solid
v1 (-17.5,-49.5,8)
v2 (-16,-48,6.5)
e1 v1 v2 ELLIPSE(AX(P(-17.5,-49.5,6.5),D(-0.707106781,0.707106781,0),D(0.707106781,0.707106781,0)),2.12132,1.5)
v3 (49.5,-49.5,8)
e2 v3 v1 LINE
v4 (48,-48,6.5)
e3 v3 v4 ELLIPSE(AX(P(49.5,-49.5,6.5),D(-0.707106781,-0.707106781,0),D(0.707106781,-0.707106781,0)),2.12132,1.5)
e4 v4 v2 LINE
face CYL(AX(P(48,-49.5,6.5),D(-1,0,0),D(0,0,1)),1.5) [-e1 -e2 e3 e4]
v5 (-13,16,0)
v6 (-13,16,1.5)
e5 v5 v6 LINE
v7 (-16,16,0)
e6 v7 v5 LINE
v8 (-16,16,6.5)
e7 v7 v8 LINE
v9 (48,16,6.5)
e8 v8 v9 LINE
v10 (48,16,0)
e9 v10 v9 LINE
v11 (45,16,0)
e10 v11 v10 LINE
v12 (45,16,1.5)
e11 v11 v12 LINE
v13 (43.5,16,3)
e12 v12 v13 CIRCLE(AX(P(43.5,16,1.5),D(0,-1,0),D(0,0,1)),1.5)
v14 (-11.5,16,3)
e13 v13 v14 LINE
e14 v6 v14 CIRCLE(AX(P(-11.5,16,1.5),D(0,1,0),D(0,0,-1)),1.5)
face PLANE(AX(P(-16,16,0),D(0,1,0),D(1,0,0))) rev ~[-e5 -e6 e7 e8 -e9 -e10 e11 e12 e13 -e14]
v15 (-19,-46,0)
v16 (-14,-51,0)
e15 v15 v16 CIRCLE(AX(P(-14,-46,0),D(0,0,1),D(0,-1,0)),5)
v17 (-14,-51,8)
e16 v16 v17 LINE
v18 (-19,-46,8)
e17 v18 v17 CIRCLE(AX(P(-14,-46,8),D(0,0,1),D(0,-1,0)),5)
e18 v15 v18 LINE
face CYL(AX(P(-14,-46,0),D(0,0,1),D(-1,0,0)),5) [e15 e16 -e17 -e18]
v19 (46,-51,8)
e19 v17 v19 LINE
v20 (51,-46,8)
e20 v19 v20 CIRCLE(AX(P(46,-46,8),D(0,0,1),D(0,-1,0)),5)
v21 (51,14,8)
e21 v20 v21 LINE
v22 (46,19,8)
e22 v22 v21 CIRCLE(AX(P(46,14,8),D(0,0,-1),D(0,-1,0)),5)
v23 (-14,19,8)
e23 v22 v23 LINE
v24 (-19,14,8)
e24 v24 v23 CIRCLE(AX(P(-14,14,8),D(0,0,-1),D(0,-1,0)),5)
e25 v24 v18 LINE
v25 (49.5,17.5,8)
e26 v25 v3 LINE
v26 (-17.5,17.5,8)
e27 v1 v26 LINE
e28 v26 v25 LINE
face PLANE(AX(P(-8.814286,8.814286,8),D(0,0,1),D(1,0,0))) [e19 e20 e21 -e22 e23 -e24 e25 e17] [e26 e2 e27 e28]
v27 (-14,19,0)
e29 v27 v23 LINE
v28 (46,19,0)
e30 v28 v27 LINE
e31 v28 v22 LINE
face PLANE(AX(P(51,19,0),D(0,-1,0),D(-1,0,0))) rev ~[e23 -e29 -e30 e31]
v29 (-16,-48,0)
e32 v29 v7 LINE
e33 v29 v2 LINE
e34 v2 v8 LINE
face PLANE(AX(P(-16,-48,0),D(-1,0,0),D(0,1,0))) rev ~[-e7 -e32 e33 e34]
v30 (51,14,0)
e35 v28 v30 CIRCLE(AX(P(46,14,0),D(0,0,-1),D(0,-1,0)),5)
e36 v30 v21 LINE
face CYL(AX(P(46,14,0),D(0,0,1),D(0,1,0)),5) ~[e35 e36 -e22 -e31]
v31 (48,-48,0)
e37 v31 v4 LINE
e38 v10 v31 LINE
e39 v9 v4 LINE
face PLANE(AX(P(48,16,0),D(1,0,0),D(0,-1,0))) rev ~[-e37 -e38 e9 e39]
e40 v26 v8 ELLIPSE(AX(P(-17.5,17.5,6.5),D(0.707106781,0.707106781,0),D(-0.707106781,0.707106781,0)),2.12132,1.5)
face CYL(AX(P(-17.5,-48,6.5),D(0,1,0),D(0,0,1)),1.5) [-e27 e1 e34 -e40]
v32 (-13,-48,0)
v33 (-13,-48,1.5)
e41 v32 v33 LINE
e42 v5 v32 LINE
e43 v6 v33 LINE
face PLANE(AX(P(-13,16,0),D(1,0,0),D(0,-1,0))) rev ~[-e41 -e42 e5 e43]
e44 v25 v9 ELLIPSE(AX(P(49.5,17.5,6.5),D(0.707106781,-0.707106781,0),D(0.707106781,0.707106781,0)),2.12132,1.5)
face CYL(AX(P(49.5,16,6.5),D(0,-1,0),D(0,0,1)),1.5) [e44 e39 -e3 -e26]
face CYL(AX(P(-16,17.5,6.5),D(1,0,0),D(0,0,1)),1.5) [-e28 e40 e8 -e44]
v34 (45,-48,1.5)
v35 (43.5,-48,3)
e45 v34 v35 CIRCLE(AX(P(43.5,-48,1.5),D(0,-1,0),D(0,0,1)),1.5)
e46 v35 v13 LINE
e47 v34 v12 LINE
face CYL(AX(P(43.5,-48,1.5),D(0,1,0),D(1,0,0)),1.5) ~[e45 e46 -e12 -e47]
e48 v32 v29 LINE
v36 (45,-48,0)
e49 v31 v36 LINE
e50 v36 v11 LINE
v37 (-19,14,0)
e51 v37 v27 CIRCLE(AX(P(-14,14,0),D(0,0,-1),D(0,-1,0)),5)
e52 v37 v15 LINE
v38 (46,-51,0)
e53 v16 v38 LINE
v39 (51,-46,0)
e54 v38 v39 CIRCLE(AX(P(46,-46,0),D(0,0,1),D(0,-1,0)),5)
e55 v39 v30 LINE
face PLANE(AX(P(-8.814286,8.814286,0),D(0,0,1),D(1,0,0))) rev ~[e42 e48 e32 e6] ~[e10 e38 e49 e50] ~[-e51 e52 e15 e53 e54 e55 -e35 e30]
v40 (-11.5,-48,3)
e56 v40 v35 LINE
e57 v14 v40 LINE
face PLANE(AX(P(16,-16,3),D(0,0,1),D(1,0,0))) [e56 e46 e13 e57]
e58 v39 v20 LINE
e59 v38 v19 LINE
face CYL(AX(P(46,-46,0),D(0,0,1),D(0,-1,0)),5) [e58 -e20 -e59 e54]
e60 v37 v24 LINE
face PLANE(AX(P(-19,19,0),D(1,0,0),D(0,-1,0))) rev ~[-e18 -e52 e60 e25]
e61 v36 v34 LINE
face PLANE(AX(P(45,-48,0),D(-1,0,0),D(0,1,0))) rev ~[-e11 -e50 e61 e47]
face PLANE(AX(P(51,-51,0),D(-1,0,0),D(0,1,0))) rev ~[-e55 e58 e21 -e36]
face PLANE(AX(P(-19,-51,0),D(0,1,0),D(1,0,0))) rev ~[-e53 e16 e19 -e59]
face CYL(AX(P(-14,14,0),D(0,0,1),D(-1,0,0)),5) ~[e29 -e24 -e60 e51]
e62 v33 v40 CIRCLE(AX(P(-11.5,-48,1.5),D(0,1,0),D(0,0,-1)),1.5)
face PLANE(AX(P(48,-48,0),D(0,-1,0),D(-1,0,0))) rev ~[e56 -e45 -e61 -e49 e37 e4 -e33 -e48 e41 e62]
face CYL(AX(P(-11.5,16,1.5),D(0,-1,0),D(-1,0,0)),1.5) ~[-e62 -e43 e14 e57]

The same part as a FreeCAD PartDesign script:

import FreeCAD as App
import Part
import Sketcher

V = App.Vector


def edges_at(feature, points):
    """Names of the edges that pass closest to the given points."""
    edges = feature.Shape.Edges
    near = lambda p: min(range(len(edges)), key=lambda i: edges[i].distToShape(Part.Vertex(*p))[0])
    return sorted({f"Edge{near(p) + 1}" for p in points})

doc = App.newDocument("Part")
body = doc.addObject("PartDesign::Body", "Body")

# Sketch on XY plane
sketch1 = body.newObject("Sketcher::SketchObject", "Sketch")
sketch1.AttachmentSupport = (doc.getObject("XY_Plane"), [""])
sketch1.MapMode = "FlatFace"
sketch1.addGeometry([
    Part.LineSegment(V(45, 16, 0), V(-13, 16, 0)),
    Part.LineSegment(V(-13, 16, 0), V(-13, -48, 0)),
    Part.LineSegment(V(-13, -48, 0), V(45, -48, 0)),
    Part.LineSegment(V(45, -48, 0), V(45, 16, 0)),
], False)
sketch1.addConstraint([
    Sketcher.Constraint("Coincident", 0, 2, 1, 1),
    Sketcher.Constraint("Coincident", 1, 2, 2, 1),
    Sketcher.Constraint("Coincident", 2, 2, 3, 1),
    Sketcher.Constraint("Coincident", 3, 2, 0, 1),
    Sketcher.Constraint("Horizontal", 0),
    Sketcher.Constraint("Vertical", 1),
    Sketcher.Constraint("Horizontal", 2),
    Sketcher.Constraint("Vertical", 3),
    Sketcher.Constraint("DistanceX", 0, 2, 0, 1, 58.0),
    Sketcher.Constraint("DistanceY", 1, 2, 1, 1, 64.0),
    Sketcher.Constraint("DistanceX", 0, 2, -1, 1, 13.0),
    Sketcher.Constraint("DistanceY", -1, 1, 0, 2, 16.0),
])
pad1 = body.newObject("PartDesign::Pad", "Pad")
pad1.Profile = sketch1
pad1.Length = 3

# Sketch on XY plane
sketch2 = body.newObject("Sketcher::SketchObject", "Sketch001")
sketch2.AttachmentSupport = (doc.getObject("XY_Plane"), [""])
sketch2.MapMode = "FlatFace"
sketch2.addGeometry([
    Part.LineSegment(V(-19, 19, 0), V(-19, -51, 0)),  # 0
    Part.LineSegment(V(-19, -51, 0), V(51, -51, 0)),  # 1
    Part.LineSegment(V(51, -51, 0), V(51, 19, 0)),  # 2
    Part.LineSegment(V(51, 19, 0), V(-19, 19, 0)),  # 3
    Part.LineSegment(V(-16, 16, 0), V(48, 16, 0)),  # 4
    Part.LineSegment(V(48, 16, 0), V(48, -48, 0)),  # 5
    Part.LineSegment(V(48, -48, 0), V(-16, -48, 0)),  # 6
    Part.LineSegment(V(-16, -48, 0), V(-16, 16, 0)),  # 7
], False)
sketch2.addConstraint([
    Sketcher.Constraint("Coincident", 0, 2, 1, 1),
    Sketcher.Constraint("Coincident", 1, 2, 2, 1),
    Sketcher.Constraint("Coincident", 2, 2, 3, 1),
    Sketcher.Constraint("Coincident", 3, 2, 0, 1),
    Sketcher.Constraint("Coincident", 4, 2, 5, 1),
    Sketcher.Constraint("Coincident", 5, 2, 6, 1),
    Sketcher.Constraint("Coincident", 6, 2, 7, 1),
    Sketcher.Constraint("Coincident", 7, 2, 4, 1),
    Sketcher.Constraint("Vertical", 0),
    Sketcher.Constraint("Horizontal", 1),
    Sketcher.Constraint("Vertical", 2),
    Sketcher.Constraint("Horizontal", 3),
    Sketcher.Constraint("Horizontal", 4),
    Sketcher.Constraint("Vertical", 5),
    Sketcher.Constraint("Horizontal", 6),
    Sketcher.Constraint("Vertical", 7),
    Sketcher.Constraint("Equal", 3, 0),
    Sketcher.Constraint("Equal", 6, 5),
    Sketcher.Constraint("DistanceX", 1, 1, 1, 2, 70.0),
    Sketcher.Constraint("DistanceX", 4, 1, 4, 2, 64.0),
    Sketcher.Constraint("DistanceX", 0, 2, -1, 1, 19.0),
    Sketcher.Constraint("DistanceY", 0, 2, -1, 1, 51.0),
    Sketcher.Constraint("DistanceX", -1, 1, 4, 2, 48.0),
    Sketcher.Constraint("DistanceY", -1, 1, 4, 2, 16.0),
])
pad2 = body.newObject("PartDesign::Pad", "Pad001")
pad2.Profile = sketch2
pad2.Length = 8
doc.recompute()

fillet = body.newObject("PartDesign::Fillet", "Fillet")
fillet.Base = (pad2, edges_at(pad2, [
    (-19, 19, 4),
    (-19, -51, 4),
    (51, -51, 4),
    (51, 19, 4),
]))
fillet.Radius = 5
doc.recompute()

fillet2 = body.newObject("PartDesign::Fillet", "Fillet001")
fillet2.Base = (fillet, edges_at(fillet, [
    (-16, -16, 8),
    (16, 16, 8),
    (48, -16, 8),
    (16, -48, 8),
    (-13, -16, 3),
    (45, -16, 3),
]))
fillet2.Radius = 1.5

doc.recompute()
